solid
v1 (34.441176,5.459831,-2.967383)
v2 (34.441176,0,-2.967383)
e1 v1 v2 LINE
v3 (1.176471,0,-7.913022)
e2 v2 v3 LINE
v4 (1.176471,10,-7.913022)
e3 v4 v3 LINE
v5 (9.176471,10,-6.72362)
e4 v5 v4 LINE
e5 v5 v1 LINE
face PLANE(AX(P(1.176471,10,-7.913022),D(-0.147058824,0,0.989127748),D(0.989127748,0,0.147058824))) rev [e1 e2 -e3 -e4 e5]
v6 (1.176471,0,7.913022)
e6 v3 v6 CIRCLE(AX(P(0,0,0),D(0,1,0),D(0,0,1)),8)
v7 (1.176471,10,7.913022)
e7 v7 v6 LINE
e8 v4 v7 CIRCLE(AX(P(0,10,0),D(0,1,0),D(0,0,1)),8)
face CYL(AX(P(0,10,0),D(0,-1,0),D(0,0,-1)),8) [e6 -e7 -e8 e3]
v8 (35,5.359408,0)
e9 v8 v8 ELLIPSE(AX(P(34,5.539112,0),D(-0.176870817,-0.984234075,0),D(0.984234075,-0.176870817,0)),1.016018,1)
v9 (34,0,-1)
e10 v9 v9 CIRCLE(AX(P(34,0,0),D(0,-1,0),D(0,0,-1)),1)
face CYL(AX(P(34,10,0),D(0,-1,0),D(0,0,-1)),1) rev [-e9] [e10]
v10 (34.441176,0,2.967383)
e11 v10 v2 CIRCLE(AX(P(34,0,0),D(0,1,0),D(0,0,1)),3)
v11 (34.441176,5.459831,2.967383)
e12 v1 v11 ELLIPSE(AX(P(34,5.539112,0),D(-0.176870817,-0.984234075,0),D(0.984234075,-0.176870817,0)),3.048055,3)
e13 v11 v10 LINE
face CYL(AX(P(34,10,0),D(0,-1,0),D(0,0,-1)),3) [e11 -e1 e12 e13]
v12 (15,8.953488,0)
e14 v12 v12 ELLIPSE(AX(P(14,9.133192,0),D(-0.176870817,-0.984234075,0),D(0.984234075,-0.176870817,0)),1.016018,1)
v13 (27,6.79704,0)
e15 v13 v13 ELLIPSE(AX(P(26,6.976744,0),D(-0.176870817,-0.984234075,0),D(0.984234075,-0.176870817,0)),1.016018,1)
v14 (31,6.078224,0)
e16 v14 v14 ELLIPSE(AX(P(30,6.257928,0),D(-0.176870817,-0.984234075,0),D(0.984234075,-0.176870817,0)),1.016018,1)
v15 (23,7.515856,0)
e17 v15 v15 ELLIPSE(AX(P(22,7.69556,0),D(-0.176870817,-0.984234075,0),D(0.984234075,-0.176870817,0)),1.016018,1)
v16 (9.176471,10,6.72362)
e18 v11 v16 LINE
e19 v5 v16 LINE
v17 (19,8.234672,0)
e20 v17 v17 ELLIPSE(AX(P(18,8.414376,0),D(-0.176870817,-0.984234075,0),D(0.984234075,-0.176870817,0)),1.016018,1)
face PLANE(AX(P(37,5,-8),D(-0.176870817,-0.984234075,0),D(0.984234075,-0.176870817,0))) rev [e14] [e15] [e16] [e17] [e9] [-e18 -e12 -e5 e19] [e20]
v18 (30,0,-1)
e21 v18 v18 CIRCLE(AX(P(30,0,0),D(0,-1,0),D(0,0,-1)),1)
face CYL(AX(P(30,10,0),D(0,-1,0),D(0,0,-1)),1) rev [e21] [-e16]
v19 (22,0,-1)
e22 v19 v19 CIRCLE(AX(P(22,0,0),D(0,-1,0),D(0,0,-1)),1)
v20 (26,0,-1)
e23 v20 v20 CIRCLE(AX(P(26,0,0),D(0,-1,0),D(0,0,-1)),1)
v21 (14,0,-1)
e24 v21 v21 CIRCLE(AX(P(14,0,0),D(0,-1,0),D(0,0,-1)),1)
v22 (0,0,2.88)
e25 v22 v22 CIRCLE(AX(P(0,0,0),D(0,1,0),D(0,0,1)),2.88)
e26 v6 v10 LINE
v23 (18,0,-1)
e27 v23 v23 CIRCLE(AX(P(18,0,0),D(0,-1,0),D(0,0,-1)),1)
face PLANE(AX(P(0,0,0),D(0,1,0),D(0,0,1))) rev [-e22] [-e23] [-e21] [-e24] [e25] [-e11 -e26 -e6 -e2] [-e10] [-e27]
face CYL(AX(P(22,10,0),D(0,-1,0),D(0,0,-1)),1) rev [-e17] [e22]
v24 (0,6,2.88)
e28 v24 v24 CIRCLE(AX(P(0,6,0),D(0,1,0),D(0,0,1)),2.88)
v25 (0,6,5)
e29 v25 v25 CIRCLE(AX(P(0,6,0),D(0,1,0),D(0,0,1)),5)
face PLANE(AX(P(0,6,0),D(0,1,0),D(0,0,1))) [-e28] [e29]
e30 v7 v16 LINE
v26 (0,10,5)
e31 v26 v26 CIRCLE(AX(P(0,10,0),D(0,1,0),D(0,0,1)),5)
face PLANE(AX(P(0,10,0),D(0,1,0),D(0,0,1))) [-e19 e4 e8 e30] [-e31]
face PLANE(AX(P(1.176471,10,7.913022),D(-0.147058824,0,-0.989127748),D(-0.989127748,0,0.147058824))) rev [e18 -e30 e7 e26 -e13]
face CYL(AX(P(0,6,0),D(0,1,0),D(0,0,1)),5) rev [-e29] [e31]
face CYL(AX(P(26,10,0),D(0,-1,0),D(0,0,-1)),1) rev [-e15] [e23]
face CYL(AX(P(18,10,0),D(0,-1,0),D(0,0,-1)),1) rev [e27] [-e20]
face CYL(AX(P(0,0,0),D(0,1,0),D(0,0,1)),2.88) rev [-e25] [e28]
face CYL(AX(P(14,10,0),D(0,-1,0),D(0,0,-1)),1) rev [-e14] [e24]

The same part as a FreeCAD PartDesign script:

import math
import FreeCAD as App
import Part
import Sketcher

doc = App.newDocument("Part")
params = doc.addObject("Spreadsheet::Sheet", "Params")
for row, (alias, value) in enumerate([
    ("sketch1_radius", "8 mm"),
    ("sketch1_radius2", "3 mm"),
    ("pad1_length", "10 mm"),
    ("sketch2_height", "5 mm"),
    ("sketch3_diameter", "10 mm"),
    ("pocket2_length", "4 mm"),
    ("sketch4_diameter", "5.76 mm"),
    ("pocket3_length", "6 mm"),
    ("sketch5_diameter", "2 mm"),
], start=1):
    params.set(f"A{row}", alias)
    params.set(f"B{row}", "=" + value)
    params.setAlias(f"B{row}", alias)

body = doc.addObject("PartDesign::Body", "Body")

sketch1 = body.newObject("Sketcher::SketchObject", "Sketch")
sketch1.AttachmentSupport = (doc.getObject("XZ_Plane"), [""])
sketch1.MapMode = "FlatFace"
sketch1.addGeometry([
    Part.LineSegment(App.Vector(34.4, -3, 0), App.Vector(1.2, -7.9, 0)),
    Part.ArcOfCircle(Part.Circle(App.Vector(0, 0, 0), App.Vector(0, 0, 1), 8), math.radians(82), math.radians(278)),
    Part.LineSegment(App.Vector(1.2, 7.9, 0), App.Vector(34.4, 3, 0)),
    Part.ArcOfCircle(Part.Circle(App.Vector(34, 0, 0), App.Vector(0, 0, 1), 3), math.radians(-82), math.radians(82)),
], False)
sketch1.addConstraint([
    Sketcher.Constraint("Tangent", 0, 2, 1, 2),
    Sketcher.Constraint("Tangent", 1, 1, 2, 1),
    Sketcher.Constraint("Tangent", 2, 2, 3, 2),
    Sketcher.Constraint("Tangent", 3, 1, 0, 1),
    Sketcher.Constraint("Coincident", 1, 3, -1, 1),
    Sketcher.Constraint("PointOnObject", 3, 3, -1),
    Sketcher.Constraint("Radius", 1, 8.0),
    Sketcher.Constraint("Radius", 3, 3.0),
    Sketcher.Constraint("DistanceX", -1, 1, 3, 3, 34.0),
])
sketch1.setExpression("Constraints[6]", "Params.sketch1_radius")
sketch1.setExpression("Constraints[7]", "Params.sketch1_radius2")
pad1 = body.newObject("PartDesign::Pad", "Pad")
pad1.Profile = sketch1
pad1.setExpression("Length", "Params.pad1_length")
pad1.Reversed = True

sketch2 = body.newObject("Sketcher::SketchObject", "Sketch001")
sketch2.AttachmentSupport = (doc.getObject("XY_Plane"), [""])
sketch2.MapMode = "FlatFace"
sketch2.addGeometry([
    Part.LineSegment(App.Vector(9, 10, 0), App.Vector(37, 5, 0)),
    Part.LineSegment(App.Vector(37, 5, 0), App.Vector(37, 10, 0)),
    Part.LineSegment(App.Vector(37, 10, 0), App.Vector(9, 10, 0)),
], False)
sketch2.addConstraint([
    Sketcher.Constraint("Coincident", 0, 2, 1, 1),
    Sketcher.Constraint("Coincident", 1, 2, 2, 1),
    Sketcher.Constraint("Coincident", 2, 2, 0, 1),
    Sketcher.Constraint("Vertical", 1),
    Sketcher.Constraint("Horizontal", 2),
    Sketcher.Constraint("DistanceY", 1, 1, 1, 2, 5.0),
    Sketcher.Constraint("DistanceX", -1, 1, 0, 2, 37.0),
    Sketcher.Constraint("DistanceY", -1, 1, 0, 2, 5.0),
    Sketcher.Constraint("DistanceX", 2, 2, 2, 1, 27.823529),
])
sketch2.setExpression("Constraints[5]", "Params.sketch2_height")
pocket1 = body.newObject("PartDesign::Pocket", "Pocket")
pocket1.Profile = sketch2
pocket1.Type = "ThroughAll"
pocket1.Midplane = True

sketch3 = body.newObject("Sketcher::SketchObject", "Sketch002")
sketch3.AttachmentSupport = (doc.getObject("XZ_Plane"), [""])
sketch3.MapMode = "FlatFace"
sketch3.AttachmentOffset = App.Placement(App.Vector(0, 0, -10), App.Rotation())
sketch3.addGeometry(Part.Circle(App.Vector(0, 0, 0), App.Vector(0, 0, 1), 5), False)
sketch3.addConstraint([
    Sketcher.Constraint("Coincident", 0, 3, -1, 1),
    Sketcher.Constraint("Diameter", 0, 10.0),
])
sketch3.setExpression("Constraints[1]", "Params.sketch3_diameter")
pocket2 = body.newObject("PartDesign::Pocket", "Pocket001")
pocket2.Profile = sketch3
pocket2.setExpression("Length", "Params.pocket2_length")
pocket2.Reversed = True

sketch4 = body.newObject("Sketcher::SketchObject", "Sketch003")
sketch4.AttachmentSupport = (doc.getObject("XZ_Plane"), [""])
sketch4.MapMode = "FlatFace"
sketch4.AttachmentOffset = App.Placement(App.Vector(0, 0, -6), App.Rotation())
sketch4.addGeometry(Part.Circle(App.Vector(0, 0, 0), App.Vector(0, 0, 1), 2.9), False)
sketch4.addConstraint([
    Sketcher.Constraint("Coincident", 0, 3, -1, 1),
    Sketcher.Constraint("Diameter", 0, 5.76),
])
sketch4.setExpression("Constraints[1]", "Params.sketch4_diameter")
pocket3 = body.newObject("PartDesign::Pocket", "Pocket002")
pocket3.Profile = sketch4
pocket3.setExpression("Length", "Params.pocket3_length")
pocket3.Reversed = True

sketch5 = body.newObject("Sketcher::SketchObject", "Sketch004")
sketch5.AttachmentSupport = (doc.getObject("XZ_Plane"), [""])
sketch5.MapMode = "FlatFace"
sketch5.addGeometry([
    Part.Circle(App.Vector(34, 0, 0), App.Vector(0, 0, 1), 1),
    Part.Circle(App.Vector(30, 0, 0), App.Vector(0, 0, 1), 1),
    Part.Circle(App.Vector(26, 0, 0), App.Vector(0, 0, 1), 1),
    Part.Circle(App.Vector(22, 0, 0), App.Vector(0, 0, 1), 1),
    Part.Circle(App.Vector(18, 0, 0), App.Vector(0, 0, 1), 1),
    Part.Circle(App.Vector(14, 0, 0), App.Vector(0, 0, 1), 1),
], False)
sketch5.addConstraint([
    Sketcher.Constraint("Equal", 0, 1),
    Sketcher.Constraint("Equal", 1, 2),
    Sketcher.Constraint("Equal", 2, 3),
    Sketcher.Constraint("Equal", 3, 4),
    Sketcher.Constraint("Equal", 4, 5),
    Sketcher.Constraint("PointOnObject", 0, 3, -1),
    Sketcher.Constraint("PointOnObject", 1, 3, -1),
    Sketcher.Constraint("PointOnObject", 2, 3, -1),
    Sketcher.Constraint("PointOnObject", 3, 3, -1),
    Sketcher.Constraint("PointOnObject", 4, 3, -1),
    Sketcher.Constraint("PointOnObject", 5, 3, -1),
    Sketcher.Constraint("Diameter", 0, 2.0),
    Sketcher.Constraint("DistanceX", -1, 1, 0, 3, 34.0),
    Sketcher.Constraint("DistanceX", -1, 1, 1, 3, 30.0),
    Sketcher.Constraint("DistanceX", -1, 1, 2, 3, 26.0),
    Sketcher.Constraint("DistanceX", -1, 1, 3, 3, 22.0),
    Sketcher.Constraint("DistanceX", -1, 1, 4, 3, 18.0),
    Sketcher.Constraint("DistanceX", -1, 1, 5, 3, 14.0),
])
sketch5.setExpression("Constraints[11]", "Params.sketch5_diameter")
pocket4 = body.newObject("PartDesign::Pocket", "Pocket003")
pocket4.Profile = sketch5
pocket4.Type = "ThroughAll"

doc.recompute()
